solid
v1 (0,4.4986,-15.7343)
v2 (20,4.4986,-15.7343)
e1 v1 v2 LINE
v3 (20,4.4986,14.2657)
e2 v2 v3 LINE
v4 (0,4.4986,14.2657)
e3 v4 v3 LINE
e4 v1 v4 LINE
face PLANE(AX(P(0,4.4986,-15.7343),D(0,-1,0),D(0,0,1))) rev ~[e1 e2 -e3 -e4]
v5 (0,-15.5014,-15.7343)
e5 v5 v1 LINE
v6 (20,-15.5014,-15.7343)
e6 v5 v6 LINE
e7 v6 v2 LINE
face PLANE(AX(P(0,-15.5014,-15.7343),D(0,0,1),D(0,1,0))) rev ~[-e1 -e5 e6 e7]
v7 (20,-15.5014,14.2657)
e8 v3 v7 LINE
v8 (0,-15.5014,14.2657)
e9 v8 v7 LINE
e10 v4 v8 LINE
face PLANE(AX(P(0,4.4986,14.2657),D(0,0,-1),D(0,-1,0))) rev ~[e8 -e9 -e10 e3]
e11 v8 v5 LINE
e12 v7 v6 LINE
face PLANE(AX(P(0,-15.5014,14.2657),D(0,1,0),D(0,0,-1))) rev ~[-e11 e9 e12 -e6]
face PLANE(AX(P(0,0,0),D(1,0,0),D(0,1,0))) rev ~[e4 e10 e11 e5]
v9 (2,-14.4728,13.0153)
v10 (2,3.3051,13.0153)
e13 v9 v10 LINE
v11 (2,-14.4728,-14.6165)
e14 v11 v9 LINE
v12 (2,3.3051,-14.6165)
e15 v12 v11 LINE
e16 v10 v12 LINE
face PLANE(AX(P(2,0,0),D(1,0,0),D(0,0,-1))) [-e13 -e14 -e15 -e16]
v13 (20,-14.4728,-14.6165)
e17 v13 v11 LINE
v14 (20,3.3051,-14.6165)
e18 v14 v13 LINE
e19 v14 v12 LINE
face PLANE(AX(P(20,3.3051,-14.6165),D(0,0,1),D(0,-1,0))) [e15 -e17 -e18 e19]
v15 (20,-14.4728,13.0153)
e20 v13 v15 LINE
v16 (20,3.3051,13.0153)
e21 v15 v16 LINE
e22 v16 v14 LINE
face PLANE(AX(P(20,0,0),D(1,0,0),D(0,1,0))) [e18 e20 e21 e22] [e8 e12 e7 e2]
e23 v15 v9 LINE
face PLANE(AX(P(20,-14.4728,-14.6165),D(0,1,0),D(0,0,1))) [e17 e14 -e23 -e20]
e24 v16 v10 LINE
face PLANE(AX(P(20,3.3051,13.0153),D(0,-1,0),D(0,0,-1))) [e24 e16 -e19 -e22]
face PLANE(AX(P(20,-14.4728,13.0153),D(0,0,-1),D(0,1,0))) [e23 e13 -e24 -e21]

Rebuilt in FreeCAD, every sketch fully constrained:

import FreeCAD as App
import Part
import Sketcher

V = App.Vector

doc = App.newDocument("Part")
body = doc.addObject("PartDesign::Body", "Body")

# Sketch on YZ plane
sketch1 = body.newObject("Sketcher::SketchObject", "Sketch")
sketch1.AttachmentSupport = (doc.getObject("YZ_Plane"), [""])
sketch1.MapMode = "FlatFace"
sketch1.addGeometry([
    Part.LineSegment(V(4, -16, 0), V(4, 14, 0)),
    Part.LineSegment(V(4, 14, 0), V(-16, 14, 0)),
    Part.LineSegment(V(-16, 14, 0), V(-16, -16, 0)),
    Part.LineSegment(V(-16, -16, 0), V(4, -16, 0)),
], False)
sketch1.addConstraint([
    Sketcher.Constraint("Coincident", 0, 2, 1, 1),
    Sketcher.Constraint("Coincident", 1, 2, 2, 1),
    Sketcher.Constraint("Coincident", 2, 2, 3, 1),
    Sketcher.Constraint("Coincident", 3, 2, 0, 1),
    Sketcher.Constraint("Vertical", 0),
    Sketcher.Constraint("Horizontal", 1),
    Sketcher.Constraint("Vertical", 2),
    Sketcher.Constraint("Horizontal", 3),
    Sketcher.Constraint("DistanceX", 1, 2, 1, 1, 20.0),
    Sketcher.Constraint("DistanceY", 0, 1, 0, 2, 30.0),
    Sketcher.Constraint("DistanceX", -1, 1, 0, 2, 4.4986),
    Sketcher.Constraint("DistanceY", -1, 1, 0, 2, 14.2657),
])
pad1 = body.newObject("PartDesign::Pad", "Pad")
pad1.Profile = sketch1
pad1.Length = 20

# Sketch on YZ plane
sketch2 = body.newObject("Sketcher::SketchObject", "Sketch001")
sketch2.AttachmentSupport = (doc.getObject("YZ_Plane"), [""])
sketch2.MapMode = "FlatFace"
sketch2.AttachmentOffset = App.Placement(V(0, 0, 20), App.Rotation())
sketch2.addGeometry([
    Part.LineSegment(V(3, -15, 0), V(3, 13, 0)),
    Part.LineSegment(V(3, 13, 0), V(-14, 13, 0)),
    Part.LineSegment(V(-14, 13, 0), V(-14, -15, 0)),
    Part.LineSegment(V(-14, -15, 0), V(3, -15, 0)),
], False)
sketch2.addConstraint([
    Sketcher.Constraint("Coincident", 0, 2, 1, 1),
    Sketcher.Constraint("Coincident", 1, 2, 2, 1),
    Sketcher.Constraint("Coincident", 2, 2, 3, 1),
    Sketcher.Constraint("Coincident", 3, 2, 0, 1),
    Sketcher.Constraint("Vertical", 0),
    Sketcher.Constraint("Horizontal", 1),
    Sketcher.Constraint("Vertical", 2),
    Sketcher.Constraint("Horizontal", 3),
    Sketcher.Constraint("DistanceX", 1, 2, 1, 1, 17.778),
    Sketcher.Constraint("DistanceY", 0, 1, 0, 2, 27.6318),
    Sketcher.Constraint("DistanceX", -1, 1, 0, 2, 3.305),
    Sketcher.Constraint("DistanceY", -1, 1, 0, 2, 13.0153),
])
pocket1 = body.newObject("PartDesign::Pocket", "Pocket")
pocket1.Profile = sketch2
pocket1.Length = 18

doc.recompute()
